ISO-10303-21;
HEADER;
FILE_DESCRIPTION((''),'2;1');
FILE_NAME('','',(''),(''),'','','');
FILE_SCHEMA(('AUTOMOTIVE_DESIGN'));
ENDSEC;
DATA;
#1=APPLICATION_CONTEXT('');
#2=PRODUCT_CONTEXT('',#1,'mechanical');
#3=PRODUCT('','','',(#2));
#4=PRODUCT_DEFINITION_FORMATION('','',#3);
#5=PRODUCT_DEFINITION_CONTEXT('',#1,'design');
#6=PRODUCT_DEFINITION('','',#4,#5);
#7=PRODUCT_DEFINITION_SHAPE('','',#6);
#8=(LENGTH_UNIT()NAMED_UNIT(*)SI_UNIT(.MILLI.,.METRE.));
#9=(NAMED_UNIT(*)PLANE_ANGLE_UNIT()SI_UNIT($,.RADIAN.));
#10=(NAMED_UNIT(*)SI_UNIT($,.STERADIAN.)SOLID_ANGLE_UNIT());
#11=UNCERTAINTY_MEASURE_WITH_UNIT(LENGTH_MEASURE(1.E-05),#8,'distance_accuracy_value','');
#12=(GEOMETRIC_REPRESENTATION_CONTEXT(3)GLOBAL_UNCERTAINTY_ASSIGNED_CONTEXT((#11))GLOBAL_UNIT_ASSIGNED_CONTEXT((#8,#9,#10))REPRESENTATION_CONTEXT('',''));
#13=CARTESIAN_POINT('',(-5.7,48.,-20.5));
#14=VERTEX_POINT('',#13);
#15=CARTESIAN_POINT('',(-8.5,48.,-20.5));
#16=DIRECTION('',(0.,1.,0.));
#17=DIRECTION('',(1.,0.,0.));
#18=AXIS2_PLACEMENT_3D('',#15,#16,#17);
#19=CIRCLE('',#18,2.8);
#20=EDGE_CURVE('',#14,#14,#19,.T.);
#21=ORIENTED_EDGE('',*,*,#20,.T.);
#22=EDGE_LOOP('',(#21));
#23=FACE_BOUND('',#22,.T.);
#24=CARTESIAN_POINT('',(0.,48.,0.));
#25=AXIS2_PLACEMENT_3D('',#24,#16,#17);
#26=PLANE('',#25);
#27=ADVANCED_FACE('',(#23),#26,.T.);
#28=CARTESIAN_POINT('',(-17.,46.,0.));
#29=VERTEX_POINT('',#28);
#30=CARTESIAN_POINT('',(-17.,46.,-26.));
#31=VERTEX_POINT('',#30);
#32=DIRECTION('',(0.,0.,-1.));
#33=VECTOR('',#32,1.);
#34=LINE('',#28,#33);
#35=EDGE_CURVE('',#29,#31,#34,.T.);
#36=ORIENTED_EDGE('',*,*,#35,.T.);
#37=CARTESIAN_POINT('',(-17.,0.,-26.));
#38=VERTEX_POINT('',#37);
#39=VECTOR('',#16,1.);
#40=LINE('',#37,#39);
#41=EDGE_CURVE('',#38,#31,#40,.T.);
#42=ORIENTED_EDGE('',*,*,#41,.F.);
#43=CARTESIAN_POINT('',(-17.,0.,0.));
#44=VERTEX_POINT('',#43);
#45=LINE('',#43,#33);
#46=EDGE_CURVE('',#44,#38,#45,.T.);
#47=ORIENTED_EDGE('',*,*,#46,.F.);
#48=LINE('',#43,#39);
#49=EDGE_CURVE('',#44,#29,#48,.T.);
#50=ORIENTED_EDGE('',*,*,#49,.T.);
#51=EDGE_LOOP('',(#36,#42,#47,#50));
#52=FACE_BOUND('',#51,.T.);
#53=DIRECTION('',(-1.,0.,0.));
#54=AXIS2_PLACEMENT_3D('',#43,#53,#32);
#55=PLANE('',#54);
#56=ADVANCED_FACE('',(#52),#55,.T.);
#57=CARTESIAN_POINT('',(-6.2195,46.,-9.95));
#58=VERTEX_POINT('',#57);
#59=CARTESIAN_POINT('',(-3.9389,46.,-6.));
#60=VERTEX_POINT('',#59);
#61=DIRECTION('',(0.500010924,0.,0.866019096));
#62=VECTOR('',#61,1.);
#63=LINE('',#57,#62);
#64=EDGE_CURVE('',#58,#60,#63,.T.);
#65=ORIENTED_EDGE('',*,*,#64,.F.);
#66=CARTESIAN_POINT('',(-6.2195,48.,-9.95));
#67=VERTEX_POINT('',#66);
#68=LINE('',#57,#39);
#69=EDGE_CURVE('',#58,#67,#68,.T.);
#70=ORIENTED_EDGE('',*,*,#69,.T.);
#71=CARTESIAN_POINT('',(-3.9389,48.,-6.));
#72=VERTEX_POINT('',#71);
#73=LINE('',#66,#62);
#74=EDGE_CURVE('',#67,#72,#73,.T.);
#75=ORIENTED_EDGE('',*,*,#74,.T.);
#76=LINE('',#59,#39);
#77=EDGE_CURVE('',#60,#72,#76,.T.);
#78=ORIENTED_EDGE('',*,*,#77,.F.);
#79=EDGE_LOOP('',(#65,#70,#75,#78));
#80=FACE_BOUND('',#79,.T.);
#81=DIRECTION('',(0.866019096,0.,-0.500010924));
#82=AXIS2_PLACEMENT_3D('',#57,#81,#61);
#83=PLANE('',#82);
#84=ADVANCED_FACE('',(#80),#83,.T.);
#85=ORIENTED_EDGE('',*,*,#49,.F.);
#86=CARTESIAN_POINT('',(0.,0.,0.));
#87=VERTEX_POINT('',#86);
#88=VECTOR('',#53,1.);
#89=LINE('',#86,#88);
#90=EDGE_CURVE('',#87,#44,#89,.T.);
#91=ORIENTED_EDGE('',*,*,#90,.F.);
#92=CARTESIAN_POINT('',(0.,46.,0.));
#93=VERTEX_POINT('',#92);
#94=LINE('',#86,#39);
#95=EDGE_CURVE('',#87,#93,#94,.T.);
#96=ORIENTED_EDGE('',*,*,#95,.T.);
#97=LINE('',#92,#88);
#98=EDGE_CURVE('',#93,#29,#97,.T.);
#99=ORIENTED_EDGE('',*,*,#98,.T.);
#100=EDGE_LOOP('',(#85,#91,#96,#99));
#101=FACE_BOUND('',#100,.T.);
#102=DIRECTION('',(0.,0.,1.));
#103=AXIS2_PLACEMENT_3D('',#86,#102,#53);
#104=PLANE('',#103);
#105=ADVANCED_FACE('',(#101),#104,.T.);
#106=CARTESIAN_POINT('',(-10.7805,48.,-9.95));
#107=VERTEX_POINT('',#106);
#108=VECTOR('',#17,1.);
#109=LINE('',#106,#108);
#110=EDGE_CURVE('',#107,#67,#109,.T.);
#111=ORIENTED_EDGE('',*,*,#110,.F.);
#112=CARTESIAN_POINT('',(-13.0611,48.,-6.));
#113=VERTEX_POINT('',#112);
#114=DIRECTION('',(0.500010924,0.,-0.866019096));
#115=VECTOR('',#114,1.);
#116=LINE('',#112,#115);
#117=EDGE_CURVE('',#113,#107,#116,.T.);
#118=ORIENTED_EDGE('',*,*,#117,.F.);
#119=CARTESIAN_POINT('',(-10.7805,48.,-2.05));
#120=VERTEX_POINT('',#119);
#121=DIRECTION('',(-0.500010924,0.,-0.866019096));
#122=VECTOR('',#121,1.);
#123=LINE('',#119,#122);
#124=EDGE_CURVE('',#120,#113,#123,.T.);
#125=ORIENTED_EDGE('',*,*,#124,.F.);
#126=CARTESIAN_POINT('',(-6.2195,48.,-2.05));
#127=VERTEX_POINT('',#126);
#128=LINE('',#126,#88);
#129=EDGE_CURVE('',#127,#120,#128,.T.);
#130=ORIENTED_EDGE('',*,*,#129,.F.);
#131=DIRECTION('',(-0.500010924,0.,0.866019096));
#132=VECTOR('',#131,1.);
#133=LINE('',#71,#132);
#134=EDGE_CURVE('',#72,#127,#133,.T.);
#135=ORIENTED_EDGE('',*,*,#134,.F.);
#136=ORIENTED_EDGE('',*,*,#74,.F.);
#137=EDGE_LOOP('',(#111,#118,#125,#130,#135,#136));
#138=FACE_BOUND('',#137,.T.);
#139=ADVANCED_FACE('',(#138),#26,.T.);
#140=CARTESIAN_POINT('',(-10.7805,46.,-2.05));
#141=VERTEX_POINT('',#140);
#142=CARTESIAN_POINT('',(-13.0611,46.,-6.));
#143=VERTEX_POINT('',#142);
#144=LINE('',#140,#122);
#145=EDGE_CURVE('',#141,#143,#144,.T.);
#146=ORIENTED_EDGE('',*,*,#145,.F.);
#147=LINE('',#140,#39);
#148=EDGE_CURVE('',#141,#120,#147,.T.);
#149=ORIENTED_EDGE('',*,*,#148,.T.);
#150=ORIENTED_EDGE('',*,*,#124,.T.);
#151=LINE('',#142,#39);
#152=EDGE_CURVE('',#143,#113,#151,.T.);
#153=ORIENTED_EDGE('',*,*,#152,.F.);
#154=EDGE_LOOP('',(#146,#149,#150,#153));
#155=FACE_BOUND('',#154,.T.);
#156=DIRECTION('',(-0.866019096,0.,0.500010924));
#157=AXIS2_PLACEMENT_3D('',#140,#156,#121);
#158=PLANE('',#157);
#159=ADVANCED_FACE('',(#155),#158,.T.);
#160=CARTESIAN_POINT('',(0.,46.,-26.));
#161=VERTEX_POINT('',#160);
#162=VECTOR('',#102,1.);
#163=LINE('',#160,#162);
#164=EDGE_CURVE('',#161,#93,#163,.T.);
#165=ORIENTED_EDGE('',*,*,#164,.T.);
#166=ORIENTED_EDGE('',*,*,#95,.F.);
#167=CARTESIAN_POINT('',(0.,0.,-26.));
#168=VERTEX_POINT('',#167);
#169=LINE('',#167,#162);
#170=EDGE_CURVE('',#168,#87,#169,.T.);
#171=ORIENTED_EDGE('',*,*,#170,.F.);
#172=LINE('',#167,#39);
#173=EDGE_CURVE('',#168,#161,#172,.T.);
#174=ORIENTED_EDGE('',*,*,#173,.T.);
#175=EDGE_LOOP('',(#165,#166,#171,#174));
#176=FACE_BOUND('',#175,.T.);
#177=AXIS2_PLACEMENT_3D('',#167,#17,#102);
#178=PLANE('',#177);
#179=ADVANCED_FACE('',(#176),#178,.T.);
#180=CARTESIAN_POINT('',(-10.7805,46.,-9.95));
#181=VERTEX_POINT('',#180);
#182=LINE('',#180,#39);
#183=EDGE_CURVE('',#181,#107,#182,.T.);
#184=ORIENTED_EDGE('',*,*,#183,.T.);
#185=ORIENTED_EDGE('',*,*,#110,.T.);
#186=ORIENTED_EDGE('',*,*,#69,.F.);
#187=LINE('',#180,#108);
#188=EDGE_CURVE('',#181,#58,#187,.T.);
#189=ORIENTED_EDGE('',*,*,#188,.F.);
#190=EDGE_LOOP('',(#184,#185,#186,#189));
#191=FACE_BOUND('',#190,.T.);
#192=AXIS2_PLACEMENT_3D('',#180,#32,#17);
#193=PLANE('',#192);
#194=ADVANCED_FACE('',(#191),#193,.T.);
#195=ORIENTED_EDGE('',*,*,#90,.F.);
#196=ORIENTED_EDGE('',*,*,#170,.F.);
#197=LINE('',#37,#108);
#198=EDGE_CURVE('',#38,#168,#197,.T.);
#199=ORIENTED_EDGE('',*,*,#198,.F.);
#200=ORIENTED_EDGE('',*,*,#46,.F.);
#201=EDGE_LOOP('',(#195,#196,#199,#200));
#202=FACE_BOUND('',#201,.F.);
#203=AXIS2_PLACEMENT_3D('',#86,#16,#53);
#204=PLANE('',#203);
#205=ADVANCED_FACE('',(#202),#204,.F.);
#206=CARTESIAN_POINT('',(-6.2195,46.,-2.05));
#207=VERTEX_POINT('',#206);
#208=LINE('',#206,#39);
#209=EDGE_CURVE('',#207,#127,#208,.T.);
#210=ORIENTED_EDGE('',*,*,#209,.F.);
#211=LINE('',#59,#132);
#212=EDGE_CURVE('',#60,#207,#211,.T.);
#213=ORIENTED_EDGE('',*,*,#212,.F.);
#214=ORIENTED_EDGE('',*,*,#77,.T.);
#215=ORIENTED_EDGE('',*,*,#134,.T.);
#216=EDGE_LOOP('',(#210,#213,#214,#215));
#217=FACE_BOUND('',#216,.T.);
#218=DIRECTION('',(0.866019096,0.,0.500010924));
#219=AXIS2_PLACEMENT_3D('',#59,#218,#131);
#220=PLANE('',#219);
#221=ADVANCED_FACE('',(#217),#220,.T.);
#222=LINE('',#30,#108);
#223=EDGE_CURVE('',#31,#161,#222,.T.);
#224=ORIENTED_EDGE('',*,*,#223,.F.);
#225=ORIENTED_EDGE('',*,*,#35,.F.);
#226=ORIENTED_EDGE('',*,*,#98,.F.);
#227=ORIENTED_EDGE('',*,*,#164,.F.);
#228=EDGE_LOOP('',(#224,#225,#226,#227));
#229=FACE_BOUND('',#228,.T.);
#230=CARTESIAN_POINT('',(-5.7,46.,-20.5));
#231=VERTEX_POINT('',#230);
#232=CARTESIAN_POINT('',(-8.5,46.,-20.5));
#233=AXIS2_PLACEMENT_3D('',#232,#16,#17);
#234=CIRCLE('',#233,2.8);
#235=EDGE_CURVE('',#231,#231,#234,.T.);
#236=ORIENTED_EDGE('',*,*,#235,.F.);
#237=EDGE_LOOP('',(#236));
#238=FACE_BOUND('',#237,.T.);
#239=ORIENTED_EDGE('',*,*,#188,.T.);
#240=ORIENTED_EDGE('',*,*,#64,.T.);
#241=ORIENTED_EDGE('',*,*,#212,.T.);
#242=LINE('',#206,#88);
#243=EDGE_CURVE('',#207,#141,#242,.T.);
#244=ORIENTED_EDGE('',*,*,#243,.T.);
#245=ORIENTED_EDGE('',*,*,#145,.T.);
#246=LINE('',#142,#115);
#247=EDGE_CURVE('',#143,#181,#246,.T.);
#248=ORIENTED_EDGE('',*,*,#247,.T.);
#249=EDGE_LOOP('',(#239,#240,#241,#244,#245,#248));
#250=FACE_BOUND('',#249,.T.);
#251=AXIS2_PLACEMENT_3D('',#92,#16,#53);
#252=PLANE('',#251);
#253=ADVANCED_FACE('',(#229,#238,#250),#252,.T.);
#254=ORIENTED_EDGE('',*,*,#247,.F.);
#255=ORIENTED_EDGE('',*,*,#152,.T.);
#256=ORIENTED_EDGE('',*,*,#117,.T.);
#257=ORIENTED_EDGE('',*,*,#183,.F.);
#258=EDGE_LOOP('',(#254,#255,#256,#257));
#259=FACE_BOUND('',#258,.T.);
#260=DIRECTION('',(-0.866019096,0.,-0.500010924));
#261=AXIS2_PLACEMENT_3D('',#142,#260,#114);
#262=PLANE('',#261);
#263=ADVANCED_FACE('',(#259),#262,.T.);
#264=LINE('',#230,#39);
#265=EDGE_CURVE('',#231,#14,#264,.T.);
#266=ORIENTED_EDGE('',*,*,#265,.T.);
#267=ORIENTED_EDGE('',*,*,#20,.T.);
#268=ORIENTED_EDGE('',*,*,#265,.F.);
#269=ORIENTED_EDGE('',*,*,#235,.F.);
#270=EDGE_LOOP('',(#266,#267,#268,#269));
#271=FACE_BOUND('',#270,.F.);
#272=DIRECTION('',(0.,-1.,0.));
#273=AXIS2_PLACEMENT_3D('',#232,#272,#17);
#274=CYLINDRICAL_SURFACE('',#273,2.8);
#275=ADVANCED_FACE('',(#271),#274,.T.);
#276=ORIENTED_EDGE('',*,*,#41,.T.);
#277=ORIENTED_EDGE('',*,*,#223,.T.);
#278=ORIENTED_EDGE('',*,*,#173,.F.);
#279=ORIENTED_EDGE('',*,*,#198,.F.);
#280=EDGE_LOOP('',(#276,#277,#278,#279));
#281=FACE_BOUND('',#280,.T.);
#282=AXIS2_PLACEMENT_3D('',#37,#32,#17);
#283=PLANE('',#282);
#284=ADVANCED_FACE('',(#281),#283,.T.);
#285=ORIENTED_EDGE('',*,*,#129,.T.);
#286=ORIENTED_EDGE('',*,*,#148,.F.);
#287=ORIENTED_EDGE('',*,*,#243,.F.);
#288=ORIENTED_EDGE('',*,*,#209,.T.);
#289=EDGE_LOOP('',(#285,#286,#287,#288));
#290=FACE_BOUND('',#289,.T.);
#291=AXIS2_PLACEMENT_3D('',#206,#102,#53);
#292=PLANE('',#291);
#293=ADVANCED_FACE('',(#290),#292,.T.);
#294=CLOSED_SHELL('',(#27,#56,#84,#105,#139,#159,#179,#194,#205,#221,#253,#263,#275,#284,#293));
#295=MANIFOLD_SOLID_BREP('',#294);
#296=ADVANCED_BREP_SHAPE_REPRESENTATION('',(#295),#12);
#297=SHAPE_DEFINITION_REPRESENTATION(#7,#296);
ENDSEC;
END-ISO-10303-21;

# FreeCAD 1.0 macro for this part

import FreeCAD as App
import Part
import Sketcher

V = App.Vector
Q = App.Units.Quantity


def add_polygon(sketch, points):
    """Adds a closed chain of lines whose ends are joined by coincident constraints."""
    first, n = sketch.GeometryCount, len(points)
    for a, b in zip(points, points[1:] + points[:1]):
        sketch.addGeometry(Part.LineSegment(App.Vector(*a, 0), App.Vector(*b, 0)), False)
    for i in range(n):
        sketch.addConstraint(Sketcher.Constraint("Coincident", first + i, 2, first + (i + 1) % n, 1))

doc = App.newDocument("Part")
params = doc.addObject("Spreadsheet::Sheet", "Params")
for row, (alias, value) in enumerate([
    ("sketch1_width", "17 mm"),
    ("sketch1_height", "26 mm"),
    ("pad1_length", "46 mm"),
    ("sketch2_diameter", "5.6 mm"),
    ("pad2_length", "2 mm"),
], start=1):
    params.set(f"A{row}", alias)
    params.set(f"B{row}", "=" + value)
    params.setAlias(f"B{row}", alias)

body = doc.addObject("PartDesign::Body", "Body")

# Sketch on XZ plane
sketch1 = body.newObject("Sketcher::SketchObject", "Sketch")
sketch1.AttachmentSupport = (doc.getObject("XZ_Plane"), [""])
sketch1.MapMode = "FlatFace"
add_polygon(sketch1, [(-17, 0), (0, 0), (0, -26), (-17, -26)])  # lines 0-3
sketch1.addConstraint([
    Sketcher.Constraint("Horizontal", 0),
    Sketcher.Constraint("Vertical", 1),
    Sketcher.Constraint("Horizontal", 2),
    Sketcher.Constraint("Vertical", 3),
    Sketcher.Constraint("Coincident", 0, 2, -1, 1),
    Sketcher.Constraint("DistanceX", 0, 1, 0, 2, 17.0),
    Sketcher.Constraint("DistanceY", 1, 2, 1, 1, 26.0),
])
sketch1.setExpression("Constraints[9]", "Params.sketch1_width")
sketch1.setExpression("Constraints[10]", "Params.sketch1_height")
pad1 = body.newObject("PartDesign::Pad", "Pad")
pad1.Profile = sketch1
pad1.setExpression("Length", "Params.pad1_length")
pad1.Reversed = True

# Sketch on XZ plane
sketch2 = body.newObject("Sketcher::SketchObject", "Sketch001")
sketch2.AttachmentSupport = (doc.getObject("XZ_Plane"), [""])
sketch2.MapMode = "FlatFace"
sketch2.AttachmentOffset = App.Placement(V(0, 0, -46), App.Rotation())
sketch2.addGeometry(Part.Circle(V(-8.5, -20.5, 0), V(0, 0, 1), 2.8), False)  # 0
add_polygon(sketch2, [(-6.2, -2), (-3.9, -6), (-6.2, -9.9), (-10.8, -9.9), (-13.1, -6), (-10.8, -2)])  # lines 1-6
sketch2.addConstraint([
    Sketcher.Constraint("Horizontal", 3),
    Sketcher.Constraint("Horizontal", 6),
    Sketcher.Constraint("Parallel", 1, 4),
    Sketcher.Constraint("Parallel", 2, 5),
    Sketcher.Constraint("Horizontal", 1, 2, 4, 2),
    Sketcher.Constraint("Vertical", 3, 2, 5, 2),
    Sketcher.Constraint("Vertical", 2, 2, 6, 2),
    Sketcher.Constraint("Diameter", 0, 5.6),
    Sketcher.Constraint("DistanceY", 1, 2, -1, 1, 6.0),
    Sketcher.Constraint("DistanceY", 3, 2, 5, 2, 7.9),
    Sketcher.Constraint("Angle", 1, Q("-59.9993 deg")),
    Sketcher.Constraint("DistanceX", 0, 3, -1, 1, 8.5),
    Sketcher.Constraint("DistanceY", 0, 3, -1, 1, 20.5),
    Sketcher.Constraint("DistanceX", 3, 2, 3, 1, 4.561),
    Sketcher.Constraint("DistanceX", 1, 2, -1, 1, 3.939),
])
sketch2.setExpression("Constraints[13]", "Params.sketch2_diameter")
pad2 = body.newObject("PartDesign::Pad", "Pad001")
pad2.Profile = sketch2
pad2.setExpression("Length", "Params.pad2_length")
pad2.Reversed = True

doc.recompute()
